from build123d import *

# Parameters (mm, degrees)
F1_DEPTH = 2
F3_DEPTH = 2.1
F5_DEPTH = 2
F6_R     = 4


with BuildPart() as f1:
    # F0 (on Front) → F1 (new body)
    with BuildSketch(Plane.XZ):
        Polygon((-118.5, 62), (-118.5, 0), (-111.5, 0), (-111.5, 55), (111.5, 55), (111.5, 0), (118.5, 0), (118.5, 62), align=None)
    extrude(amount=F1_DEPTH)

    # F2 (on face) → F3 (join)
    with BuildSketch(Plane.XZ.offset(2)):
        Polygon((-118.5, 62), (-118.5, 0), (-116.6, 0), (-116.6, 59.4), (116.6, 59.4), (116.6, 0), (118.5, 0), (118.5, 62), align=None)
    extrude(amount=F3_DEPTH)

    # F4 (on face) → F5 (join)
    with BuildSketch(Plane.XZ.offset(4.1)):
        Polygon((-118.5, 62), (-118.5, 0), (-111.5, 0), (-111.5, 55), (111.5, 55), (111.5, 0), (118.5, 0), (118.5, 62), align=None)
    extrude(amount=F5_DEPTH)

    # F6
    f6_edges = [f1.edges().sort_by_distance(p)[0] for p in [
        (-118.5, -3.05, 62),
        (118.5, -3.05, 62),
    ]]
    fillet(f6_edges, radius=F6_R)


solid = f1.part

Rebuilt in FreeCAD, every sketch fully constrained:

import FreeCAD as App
import Part
import Sketcher

V = App.Vector
Q = App.Units.Quantity


def edges_at(feature, points):
    """Names of the edges that pass closest to the given points."""
    edges = feature.Shape.Edges
    near = lambda p: min(range(len(edges)), key=lambda i: edges[i].distToShape(Part.Vertex(*p))[0])
    return sorted({f"Edge{near(p) + 1}" for p in points})


def add_polygon(sketch, points):
    """Adds a closed chain of lines whose ends are joined by coincident constraints."""
    first, n = sketch.GeometryCount, len(points)
    for a, b in zip(points, points[1:] + points[:1]):
        sketch.addGeometry(Part.LineSegment(App.Vector(*a, 0), App.Vector(*b, 0)), False)
    for i in range(n):
        sketch.addConstraint(Sketcher.Constraint("Coincident", first + i, 2, first + (i + 1) % n, 1))

doc = App.newDocument("Part")
body = doc.addObject("PartDesign::Body", "Body")

# Sketch on XZ plane
sketch1 = doc.addObject("Sketcher::SketchObject", "Sketch")
body.addObject(sketch1)
sketch1.AttachmentSupport = (doc.XZ_Plane, [""])
sketch1.MapMode = "FlatFace"
add_polygon(sketch1, [(-118, 62), (-118, 0), (-112, 0), (-112, 55), (112, 55), (112, 0), (118, 0), (118, 62)])  # lines 0-7
sketch1.addConstraint(Sketcher.Constraint("Vertical", 0))
sketch1.addConstraint(Sketcher.Constraint("Horizontal", 1))
sketch1.addConstraint(Sketcher.Constraint("Vertical", 2))
sketch1.addConstraint(Sketcher.Constraint("Horizontal", 3))
sketch1.addConstraint(Sketcher.Constraint("Vertical", 4))
sketch1.addConstraint(Sketcher.Constraint("Horizontal", 5))
sketch1.addConstraint(Sketcher.Constraint("Vertical", 6))
sketch1.addConstraint(Sketcher.Constraint("Horizontal", 7))
sketch1.addConstraint(Sketcher.Constraint("Symmetric", 1, 2, 4, 2, -1, 1))
sketch1.addConstraint(Sketcher.Constraint("Symmetric", 0, 2, 5, 2, -2))
sketch1.addConstraint(Sketcher.Constraint("DistanceX", 1, 1, 1, 2, Q("7 mm")))
sketch1.addConstraint(Sketcher.Constraint("DistanceX", 3, 1, 3, 2, Q("223 mm")))
sketch1.addConstraint(Sketcher.Constraint("DistanceY", 0, 2, 0, 1, Q("62 mm")))
sketch1.addConstraint(Sketcher.Constraint("DistanceY", 2, 1, 2, 2, Q("55 mm")))
pad1 = doc.addObject("PartDesign::Pad", "Pad")
body.addObject(pad1)
pad1.Profile = sketch1
pad1.Length = 2

# Sketch on XZ plane
sketch2 = doc.addObject("Sketcher::SketchObject", "Sketch001")
body.addObject(sketch2)
sketch2.AttachmentSupport = (doc.XZ_Plane, [""])
sketch2.MapMode = "FlatFace"
sketch2.AttachmentOffset = App.Placement(V(0, 0, 2), App.Rotation())
add_polygon(sketch2, [(-118.5, 62), (-118.5, 0), (-116.6, 0), (-116.6, 59.4), (116.6, 59.4), (116.6, 0), (118.5, 0), (118.5, 62)])  # lines 0-7
sketch2.addConstraint(Sketcher.Constraint("Vertical", 0))
sketch2.addConstraint(Sketcher.Constraint("Horizontal", 1))
sketch2.addConstraint(Sketcher.Constraint("Vertical", 2))
sketch2.addConstraint(Sketcher.Constraint("Horizontal", 3))
sketch2.addConstraint(Sketcher.Constraint("Vertical", 4))
sketch2.addConstraint(Sketcher.Constraint("Horizontal", 5))
sketch2.addConstraint(Sketcher.Constraint("Vertical", 6))
sketch2.addConstraint(Sketcher.Constraint("Horizontal", 7))
sketch2.addConstraint(Sketcher.Constraint("Symmetric", 1, 2, 4, 2, -1, 1))
sketch2.addConstraint(Sketcher.Constraint("Symmetric", 0, 2, 5, 2, -2))
sketch2.addConstraint(Sketcher.Constraint("DistanceX", 7, 2, 7, 1, Q("237 mm")))
sketch2.addConstraint(Sketcher.Constraint("DistanceY", 0, 2, 0, 1, Q("62 mm")))
sketch2.addConstraint(Sketcher.Constraint("DistanceX", 1, 1, 1, 2, Q("1.9 mm")))
sketch2.addConstraint(Sketcher.Constraint("DistanceY", 2, 1, 2, 2, Q("59.4 mm")))
pad2 = doc.addObject("PartDesign::Pad", "Pad001")
body.addObject(pad2)
pad2.Profile = sketch2
pad2.Length = 2.1

# Sketch on XZ plane
sketch3 = doc.addObject("Sketcher::SketchObject", "Sketch002")
body.addObject(sketch3)
sketch3.AttachmentSupport = (doc.XZ_Plane, [""])
sketch3.MapMode = "FlatFace"
sketch3.AttachmentOffset = App.Placement(V(0, 0, 4.1), App.Rotation())
add_polygon(sketch3, [(-118, 62), (-118, 0), (-112, 0), (-112, 55), (112, 55), (112, 0), (118, 0), (118, 62)])  # lines 0-7
sketch3.addConstraint(Sketcher.Constraint("Vertical", 0))
sketch3.addConstraint(Sketcher.Constraint("Horizontal", 1))
sketch3.addConstraint(Sketcher.Constraint("Vertical", 2))
sketch3.addConstraint(Sketcher.Constraint("Horizontal", 3))
sketch3.addConstraint(Sketcher.Constraint("Vertical", 4))
sketch3.addConstraint(Sketcher.Constraint("Horizontal", 5))
sketch3.addConstraint(Sketcher.Constraint("Vertical", 6))
sketch3.addConstraint(Sketcher.Constraint("Horizontal", 7))
sketch3.addConstraint(Sketcher.Constraint("Symmetric", 1, 2, 4, 2, -1, 1))
sketch3.addConstraint(Sketcher.Constraint("Symmetric", 0, 2, 5, 2, -2))
sketch3.addConstraint(Sketcher.Constraint("DistanceX", 1, 1, 1, 2, Q("7 mm")))
sketch3.addConstraint(Sketcher.Constraint("DistanceX", 3, 1, 3, 2, Q("223 mm")))
sketch3.addConstraint(Sketcher.Constraint("DistanceY", 0, 2, 0, 1, Q("62 mm")))
sketch3.addConstraint(Sketcher.Constraint("DistanceY", 2, 1, 2, 2, Q("55 mm")))
pad3 = doc.addObject("PartDesign::Pad", "Pad002")
body.addObject(pad3)
pad3.Profile = sketch3
pad3.Length = 2
doc.recompute()

fillet = doc.addObject("PartDesign::Fillet", "Fillet")
body.addObject(fillet)
fillet.Base = (pad3, edges_at(pad3, [(-118.5, -3.05, 62), (118.5, -3.05, 62)]))
fillet.Radius = 4

doc.recompute()
